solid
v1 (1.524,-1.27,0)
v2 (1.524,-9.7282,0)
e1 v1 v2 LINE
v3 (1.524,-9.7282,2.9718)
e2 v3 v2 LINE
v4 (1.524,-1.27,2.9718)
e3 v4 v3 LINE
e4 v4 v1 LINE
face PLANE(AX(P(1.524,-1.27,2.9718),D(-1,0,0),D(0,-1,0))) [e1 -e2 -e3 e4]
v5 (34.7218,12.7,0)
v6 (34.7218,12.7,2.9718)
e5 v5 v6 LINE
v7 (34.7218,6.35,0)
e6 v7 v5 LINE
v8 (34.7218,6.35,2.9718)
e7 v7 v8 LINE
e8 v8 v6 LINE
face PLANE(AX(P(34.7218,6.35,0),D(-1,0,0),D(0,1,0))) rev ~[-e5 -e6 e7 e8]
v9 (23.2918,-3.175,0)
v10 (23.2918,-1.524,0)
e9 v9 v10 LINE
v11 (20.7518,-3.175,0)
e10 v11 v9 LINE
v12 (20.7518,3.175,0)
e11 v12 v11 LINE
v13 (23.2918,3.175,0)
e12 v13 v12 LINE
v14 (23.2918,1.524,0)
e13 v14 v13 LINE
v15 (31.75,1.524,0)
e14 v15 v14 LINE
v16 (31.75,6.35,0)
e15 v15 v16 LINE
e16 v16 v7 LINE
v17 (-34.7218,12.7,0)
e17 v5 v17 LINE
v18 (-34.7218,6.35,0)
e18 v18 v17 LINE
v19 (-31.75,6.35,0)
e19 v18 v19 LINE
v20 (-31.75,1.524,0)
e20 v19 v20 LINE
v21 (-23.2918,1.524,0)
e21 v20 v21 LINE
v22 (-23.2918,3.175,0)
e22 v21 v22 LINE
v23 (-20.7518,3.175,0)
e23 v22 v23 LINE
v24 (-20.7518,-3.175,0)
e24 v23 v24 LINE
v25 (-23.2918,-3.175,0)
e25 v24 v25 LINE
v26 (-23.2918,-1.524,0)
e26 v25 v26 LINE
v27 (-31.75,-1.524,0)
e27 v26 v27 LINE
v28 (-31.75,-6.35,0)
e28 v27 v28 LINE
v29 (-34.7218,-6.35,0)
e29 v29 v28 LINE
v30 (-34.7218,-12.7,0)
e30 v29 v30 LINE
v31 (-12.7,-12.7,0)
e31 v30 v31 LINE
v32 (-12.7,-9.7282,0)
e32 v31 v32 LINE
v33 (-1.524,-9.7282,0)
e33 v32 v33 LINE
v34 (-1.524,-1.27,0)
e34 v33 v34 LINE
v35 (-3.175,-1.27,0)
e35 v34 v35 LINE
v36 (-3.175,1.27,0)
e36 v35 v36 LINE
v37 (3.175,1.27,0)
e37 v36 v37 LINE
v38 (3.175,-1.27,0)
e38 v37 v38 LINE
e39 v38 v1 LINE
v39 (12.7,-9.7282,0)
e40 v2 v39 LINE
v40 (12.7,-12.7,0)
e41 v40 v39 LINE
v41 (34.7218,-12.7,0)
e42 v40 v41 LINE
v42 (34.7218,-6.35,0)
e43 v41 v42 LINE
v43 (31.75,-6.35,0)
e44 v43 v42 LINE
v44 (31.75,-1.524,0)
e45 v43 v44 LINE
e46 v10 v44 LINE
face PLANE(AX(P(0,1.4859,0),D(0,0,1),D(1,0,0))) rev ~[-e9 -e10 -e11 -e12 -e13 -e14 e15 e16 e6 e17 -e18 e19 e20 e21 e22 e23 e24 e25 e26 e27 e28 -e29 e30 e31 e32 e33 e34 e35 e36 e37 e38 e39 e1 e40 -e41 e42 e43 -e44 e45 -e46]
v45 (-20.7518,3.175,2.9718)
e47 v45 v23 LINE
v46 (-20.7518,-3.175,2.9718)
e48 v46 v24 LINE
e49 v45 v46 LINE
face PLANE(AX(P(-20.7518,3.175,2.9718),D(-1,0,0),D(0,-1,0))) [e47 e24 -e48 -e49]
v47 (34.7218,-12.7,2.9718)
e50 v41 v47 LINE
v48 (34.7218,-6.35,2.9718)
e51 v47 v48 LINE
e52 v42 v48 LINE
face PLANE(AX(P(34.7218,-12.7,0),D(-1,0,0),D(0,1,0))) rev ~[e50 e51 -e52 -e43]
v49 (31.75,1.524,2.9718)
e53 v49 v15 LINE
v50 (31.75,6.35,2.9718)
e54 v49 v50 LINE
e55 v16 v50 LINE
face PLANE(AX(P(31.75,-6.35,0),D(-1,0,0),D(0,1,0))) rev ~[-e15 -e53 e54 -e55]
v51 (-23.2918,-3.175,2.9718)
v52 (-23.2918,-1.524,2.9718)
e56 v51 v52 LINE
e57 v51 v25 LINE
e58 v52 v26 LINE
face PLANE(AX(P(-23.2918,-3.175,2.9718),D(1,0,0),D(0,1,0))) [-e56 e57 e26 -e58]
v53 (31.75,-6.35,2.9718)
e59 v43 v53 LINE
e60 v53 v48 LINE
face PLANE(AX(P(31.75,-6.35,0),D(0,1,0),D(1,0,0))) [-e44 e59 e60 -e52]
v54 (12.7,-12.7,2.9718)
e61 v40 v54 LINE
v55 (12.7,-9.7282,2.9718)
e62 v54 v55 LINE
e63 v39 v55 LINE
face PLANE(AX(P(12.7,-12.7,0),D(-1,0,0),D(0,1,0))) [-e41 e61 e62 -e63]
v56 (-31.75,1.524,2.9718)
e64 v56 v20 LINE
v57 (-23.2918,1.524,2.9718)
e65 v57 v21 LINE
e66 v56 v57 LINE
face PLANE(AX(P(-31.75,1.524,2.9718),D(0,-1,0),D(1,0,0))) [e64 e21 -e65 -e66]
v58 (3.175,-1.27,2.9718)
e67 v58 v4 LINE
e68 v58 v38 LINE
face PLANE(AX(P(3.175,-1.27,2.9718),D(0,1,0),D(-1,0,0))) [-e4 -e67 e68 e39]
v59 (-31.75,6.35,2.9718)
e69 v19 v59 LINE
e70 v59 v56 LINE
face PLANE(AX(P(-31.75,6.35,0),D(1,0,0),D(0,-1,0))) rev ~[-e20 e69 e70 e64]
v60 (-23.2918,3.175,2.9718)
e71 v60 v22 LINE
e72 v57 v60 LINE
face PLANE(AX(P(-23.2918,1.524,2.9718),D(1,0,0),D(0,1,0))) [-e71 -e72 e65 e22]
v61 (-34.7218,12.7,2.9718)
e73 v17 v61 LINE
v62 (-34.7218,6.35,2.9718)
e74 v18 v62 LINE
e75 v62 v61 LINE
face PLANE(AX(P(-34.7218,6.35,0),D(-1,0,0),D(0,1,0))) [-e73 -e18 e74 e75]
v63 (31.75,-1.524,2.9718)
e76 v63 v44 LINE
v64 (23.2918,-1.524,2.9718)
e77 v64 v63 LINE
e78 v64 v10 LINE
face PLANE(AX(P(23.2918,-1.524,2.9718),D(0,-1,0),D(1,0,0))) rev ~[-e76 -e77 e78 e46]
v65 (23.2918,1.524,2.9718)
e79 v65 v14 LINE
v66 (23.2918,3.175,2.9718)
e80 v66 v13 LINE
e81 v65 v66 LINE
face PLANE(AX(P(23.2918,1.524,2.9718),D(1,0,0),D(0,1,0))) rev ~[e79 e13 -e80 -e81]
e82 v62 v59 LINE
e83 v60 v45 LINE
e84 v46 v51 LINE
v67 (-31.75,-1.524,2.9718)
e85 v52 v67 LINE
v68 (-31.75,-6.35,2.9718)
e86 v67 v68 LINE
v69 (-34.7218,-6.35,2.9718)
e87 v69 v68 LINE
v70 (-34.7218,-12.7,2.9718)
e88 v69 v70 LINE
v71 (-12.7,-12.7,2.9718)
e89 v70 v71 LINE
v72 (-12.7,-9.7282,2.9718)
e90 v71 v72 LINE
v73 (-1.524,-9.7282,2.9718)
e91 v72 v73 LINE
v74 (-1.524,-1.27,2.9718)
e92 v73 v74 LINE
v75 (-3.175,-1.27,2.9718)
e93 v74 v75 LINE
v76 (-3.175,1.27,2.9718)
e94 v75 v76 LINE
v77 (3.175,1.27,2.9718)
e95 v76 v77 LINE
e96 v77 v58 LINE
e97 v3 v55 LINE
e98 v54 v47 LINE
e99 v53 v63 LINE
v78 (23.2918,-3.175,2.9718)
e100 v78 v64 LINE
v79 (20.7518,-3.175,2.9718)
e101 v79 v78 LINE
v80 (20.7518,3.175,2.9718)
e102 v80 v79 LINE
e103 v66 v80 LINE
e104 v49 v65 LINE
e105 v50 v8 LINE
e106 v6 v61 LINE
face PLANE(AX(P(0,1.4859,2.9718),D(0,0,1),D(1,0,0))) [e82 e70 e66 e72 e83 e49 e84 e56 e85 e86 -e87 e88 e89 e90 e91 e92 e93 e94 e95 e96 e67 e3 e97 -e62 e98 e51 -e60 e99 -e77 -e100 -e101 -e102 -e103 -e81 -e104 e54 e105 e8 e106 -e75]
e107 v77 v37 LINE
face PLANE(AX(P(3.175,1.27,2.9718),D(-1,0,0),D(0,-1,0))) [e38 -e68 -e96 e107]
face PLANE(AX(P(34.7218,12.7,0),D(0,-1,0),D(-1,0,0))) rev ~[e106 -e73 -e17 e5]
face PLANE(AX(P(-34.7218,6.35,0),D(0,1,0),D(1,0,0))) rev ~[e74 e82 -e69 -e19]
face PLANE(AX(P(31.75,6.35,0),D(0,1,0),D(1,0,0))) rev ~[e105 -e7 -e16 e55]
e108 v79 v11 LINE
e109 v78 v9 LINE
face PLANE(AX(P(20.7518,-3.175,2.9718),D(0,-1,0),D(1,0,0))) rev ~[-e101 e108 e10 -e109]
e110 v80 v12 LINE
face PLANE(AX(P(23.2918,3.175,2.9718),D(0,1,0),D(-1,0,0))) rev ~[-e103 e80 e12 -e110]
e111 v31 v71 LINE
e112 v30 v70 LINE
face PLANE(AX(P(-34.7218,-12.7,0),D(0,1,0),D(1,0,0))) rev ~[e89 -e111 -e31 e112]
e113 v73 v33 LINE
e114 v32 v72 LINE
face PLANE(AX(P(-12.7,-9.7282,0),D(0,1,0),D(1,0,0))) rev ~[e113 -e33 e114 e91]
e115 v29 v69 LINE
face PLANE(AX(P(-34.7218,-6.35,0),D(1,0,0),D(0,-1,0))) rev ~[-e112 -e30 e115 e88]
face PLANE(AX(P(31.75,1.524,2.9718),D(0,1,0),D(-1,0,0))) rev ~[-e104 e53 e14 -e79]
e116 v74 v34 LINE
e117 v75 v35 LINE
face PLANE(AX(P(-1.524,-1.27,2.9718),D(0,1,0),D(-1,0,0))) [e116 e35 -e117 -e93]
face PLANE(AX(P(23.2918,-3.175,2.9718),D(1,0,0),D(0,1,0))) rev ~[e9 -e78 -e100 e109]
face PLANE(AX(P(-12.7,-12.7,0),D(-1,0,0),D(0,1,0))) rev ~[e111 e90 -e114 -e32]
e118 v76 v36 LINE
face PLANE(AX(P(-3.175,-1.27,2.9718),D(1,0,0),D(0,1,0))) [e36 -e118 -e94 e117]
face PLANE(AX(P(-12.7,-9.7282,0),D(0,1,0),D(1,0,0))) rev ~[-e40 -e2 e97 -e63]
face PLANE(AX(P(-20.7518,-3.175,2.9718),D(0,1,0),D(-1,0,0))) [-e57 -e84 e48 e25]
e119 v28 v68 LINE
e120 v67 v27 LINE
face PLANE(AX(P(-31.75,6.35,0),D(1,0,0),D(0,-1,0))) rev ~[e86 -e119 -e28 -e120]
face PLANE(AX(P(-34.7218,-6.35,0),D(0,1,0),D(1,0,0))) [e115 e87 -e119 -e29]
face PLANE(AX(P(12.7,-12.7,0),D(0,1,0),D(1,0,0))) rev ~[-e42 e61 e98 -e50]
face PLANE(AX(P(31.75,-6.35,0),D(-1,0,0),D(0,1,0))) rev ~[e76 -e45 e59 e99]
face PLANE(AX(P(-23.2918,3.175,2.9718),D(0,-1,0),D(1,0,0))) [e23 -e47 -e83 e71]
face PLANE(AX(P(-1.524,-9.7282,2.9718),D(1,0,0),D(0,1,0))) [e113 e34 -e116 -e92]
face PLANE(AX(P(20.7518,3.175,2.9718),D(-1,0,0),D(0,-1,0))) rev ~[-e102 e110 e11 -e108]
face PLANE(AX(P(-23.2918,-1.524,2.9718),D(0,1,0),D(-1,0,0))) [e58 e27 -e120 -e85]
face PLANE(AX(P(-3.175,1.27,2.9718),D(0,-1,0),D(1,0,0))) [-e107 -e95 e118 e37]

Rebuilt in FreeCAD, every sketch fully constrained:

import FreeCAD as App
import Part
import Sketcher
from FreeCAD import Vector
Q = App.Units.Quantity


def add_polygon(sketch, points):
    """Adds a closed chain of lines whose ends are joined by coincident constraints."""
    first, n = sketch.GeometryCount, len(points)
    for a, b in zip(points, points[1:] + points[:1]):
        sketch.addGeometry(Part.LineSegment(App.Vector(*a, 0), App.Vector(*b, 0)), False)
    for i in range(n):
        sketch.addConstraint(Sketcher.Constraint("Coincident", first + i, 2, first + (i + 1) % n, 1))

doc = App.newDocument("Part")
params = doc.addObject("Spreadsheet::Sheet", "Params")
for row, (alias, value) in enumerate([
    ("sketch1_width", "1 in"),
    ("sketch1_height", "0.5 in"),
    ("sketch1_width2", "0.117 in"),
    ("sketch1_width3", "0.867 in"),
    ("pad1_length", "0.117 in"),
    ("sketch2_width", "0.1 in"),
    ("sketch2_width2", "0.25 in"),
    ("sketch2_width3", "0.12 in"),
    ("sketch2_width4", "0.333 in"),
], start=1):
    params.set(f"A{row}", alias)
    params.set(f"B{row}", "=" + value)
    params.setAlias(f"B{row}", alias)

body = doc.addObject("PartDesign::Body", "Body")

sketch1 = body.newObject("Sketcher::SketchObject", "Sketch")
sketch1.AttachmentSupport = (doc.getObject("XY_Plane"), [""])
sketch1.MapMode = "FlatFace"
add_polygon(sketch1, [(-34.7, 12.7), (-34.7, 6.3), (-31.8, 6.3), (-31.8, -6.3), (-34.7, -6.3), (-34.7, -12.7), (-12.7, -12.7), (-12.7, -9.7), (12.7, -9.7), (12.7, -12.7), (34.7, -12.7), (34.7, -6.3), (31.8, -6.3), (31.8, 6.3), (34.7, 6.3), (34.7, 12.7)])
sketch1.addConstraint([
    Sketcher.Constraint("Vertical", 0),
    Sketcher.Constraint("Horizontal", 1),
    Sketcher.Constraint("Vertical", 2),
    Sketcher.Constraint("Horizontal", 3),
    Sketcher.Constraint("Vertical", 4),
    Sketcher.Constraint("Horizontal", 5),
    Sketcher.Constraint("Vertical", 6),
    Sketcher.Constraint("Horizontal", 7),
    Sketcher.Constraint("Vertical", 8),
    Sketcher.Constraint("Horizontal", 9),
    Sketcher.Constraint("Vertical", 10),
    Sketcher.Constraint("Horizontal", 11),
    Sketcher.Constraint("Vertical", 12),
    Sketcher.Constraint("Horizontal", 13),
    Sketcher.Constraint("Vertical", 14),
    Sketcher.Constraint("Horizontal", 15),
    Sketcher.Constraint("Symmetric", 0, 2, 10, 2, -1, 1),
    Sketcher.Constraint("Symmetric", 2, 2, 12, 2, -1, 1),
    Sketcher.Constraint("Symmetric", 4, 2, 14, 2, -1, 1),
    Sketcher.Constraint("Symmetric", 5, 2, 8, 2, -2),
    Sketcher.Constraint("Symmetric", 3, 2, 10, 2, -2),
    Sketcher.Constraint("Equal", 13, 6),
    Sketcher.Constraint("DistanceX", 7, 1, 7, 2, Q("1 in")),
    Sketcher.Constraint("DistanceY", 2, 2, 2, 1, Q("0.5 in")),
    Sketcher.Constraint("DistanceY", 9, 2, 14, 2, Q("1 in")),
    Sketcher.Constraint("DistanceX", 1, 1, 1, 2, Q("0.117 in")),
    Sketcher.Constraint("DistanceX", 5, 1, 5, 2, Q("0.867 in")),
])
sketch1.setExpression("Constraints[38]", "Params.sketch1_width")
sketch1.setExpression("Constraints[39]", "Params.sketch1_height")
sketch1.setExpression("Constraints[41]", "Params.sketch1_width2")
sketch1.setExpression("Constraints[42]", "Params.sketch1_width3")
pad1 = body.newObject("PartDesign::Pad", "Pad")
pad1.Profile = sketch1
pad1.setExpression("Length", "Params.pad1_length")

sketch2 = body.newObject("Sketcher::SketchObject", "Sketch001")
sketch2.AttachmentSupport = (doc.getObject("XY_Plane"), [""])
sketch2.MapMode = "FlatFace"
sketch2.AttachmentOffset = App.Placement(Vector(0, 0, 0.117 * 25.4), App.Rotation())
add_polygon(sketch2, [(-20.8, -3.2), (-20.8, 3.2), (-23.3, 3.2), (-23.3, 1.5), (-31.8, 1.5), (-31.8, -1.5), (-23.3, -1.5), (-23.3, -3.2)])
add_polygon(sketch2, [(3.2, 1.3), (-3.2, 1.3), (-3.2, -1.3), (-1.5, -1.3), (-1.5, -9.7), (1.5, -9.7), (1.5, -1.3), (3.2, -1.3)])
add_polygon(sketch2, [(20.8, 3.2), (20.8, -3.2), (23.3, -3.2), (23.3, -1.5), (31.8, -1.5), (31.8, 1.5), (23.3, 1.5), (23.3, 3.2)])
sketch2.addConstraint([
    Sketcher.Constraint("Vertical", 0),
    Sketcher.Constraint("Horizontal", 1),
    Sketcher.Constraint("Vertical", 2),
    Sketcher.Constraint("Horizontal", 3),
    Sketcher.Constraint("Vertical", 4),
    Sketcher.Constraint("Horizontal", 5),
    Sketcher.Constraint("Vertical", 6),
    Sketcher.Constraint("Horizontal", 7),
    Sketcher.Constraint("Horizontal", 8),
    Sketcher.Constraint("Vertical", 9),
    Sketcher.Constraint("Horizontal", 10),
    Sketcher.Constraint("Vertical", 11),
    Sketcher.Constraint("Horizontal", 12),
    Sketcher.Constraint("Vertical", 13),
    Sketcher.Constraint("Horizontal", 14),
    Sketcher.Constraint("Vertical", 15),
    Sketcher.Constraint("Vertical", 16),
    Sketcher.Constraint("Horizontal", 17),
    Sketcher.Constraint("Vertical", 18),
    Sketcher.Constraint("Horizontal", 19),
    Sketcher.Constraint("Vertical", 20),
    Sketcher.Constraint("Horizontal", 21),
    Sketcher.Constraint("Vertical", 22),
    Sketcher.Constraint("Horizontal", 23),
    Sketcher.Constraint("Symmetric", 8, 2, 14, 2, -1, 1),
    Sketcher.Constraint("Symmetric", 0, 2, 16, 2, -1, 1),
    Sketcher.Constraint("Symmetric", 2, 2, 18, 2, -1, 1),
    Sketcher.Constraint("Symmetric", 4, 2, 20, 2, -1, 1),
    Sketcher.Constraint("Symmetric", 6, 2, 22, 2, -1, 1),
    Sketcher.Constraint("Symmetric", 10, 2, 13, 2, -2),
    Sketcher.Constraint("Symmetric", 6, 2, 17, 2, -2),
    Sketcher.Constraint("Horizontal", 5, 2, 18, 2),
    Sketcher.Constraint("Equal", 8, 0),
    Sketcher.Constraint("Equal", 14, 2),
    Sketcher.Constraint("Equal", 23, 9),
    Sketcher.Constraint("Equal", 21, 11),
    Sketcher.Constraint("DistanceX", 1, 2, 1, 1, Q("0.1 in")),
    Sketcher.Constraint("DistanceX", 8, 2, 8, 1, Q("0.25 in")),
    Sketcher.Constraint("DistanceX", 12, 1, 12, 2, Q("0.12 in")),
    Sketcher.Constraint("DistanceX", 3, 2, 3, 1, Q("0.333 in")),
    Sketcher.Constraint("DistanceX", 3, 2, -1, 1, Q("1.25 in")),
])
sketch2.setExpression("Constraints[60]", "Params.sketch2_width")
sketch2.setExpression("Constraints[61]", "Params.sketch2_width2")
sketch2.setExpression("Constraints[62]", "Params.sketch2_width3")
sketch2.setExpression("Constraints[63]", "Params.sketch2_width4")
pocket1 = body.newObject("PartDesign::Pocket", "Pocket")
pocket1.Profile = sketch2
pocket1.Type = "ThroughAll"

doc.recompute()
